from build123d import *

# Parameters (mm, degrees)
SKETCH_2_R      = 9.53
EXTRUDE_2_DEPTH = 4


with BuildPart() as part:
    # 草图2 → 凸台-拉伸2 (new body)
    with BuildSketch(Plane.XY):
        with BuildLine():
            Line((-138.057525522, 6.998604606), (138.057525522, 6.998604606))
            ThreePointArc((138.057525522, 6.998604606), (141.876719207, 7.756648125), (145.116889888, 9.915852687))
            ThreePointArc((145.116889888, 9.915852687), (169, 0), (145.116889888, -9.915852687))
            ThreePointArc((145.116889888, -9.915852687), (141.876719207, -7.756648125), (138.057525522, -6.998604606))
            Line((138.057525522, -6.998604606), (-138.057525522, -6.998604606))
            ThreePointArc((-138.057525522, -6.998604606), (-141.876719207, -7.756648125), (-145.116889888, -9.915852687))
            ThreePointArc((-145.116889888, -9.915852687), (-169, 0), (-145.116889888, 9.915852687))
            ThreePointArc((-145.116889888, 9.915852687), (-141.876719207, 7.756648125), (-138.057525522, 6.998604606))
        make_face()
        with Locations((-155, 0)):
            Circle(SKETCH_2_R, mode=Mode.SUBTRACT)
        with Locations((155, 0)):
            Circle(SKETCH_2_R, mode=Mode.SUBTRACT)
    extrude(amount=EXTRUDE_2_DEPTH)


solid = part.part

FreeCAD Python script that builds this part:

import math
import FreeCAD as App
import Part
import Sketcher
from FreeCAD import Vector

doc = App.newDocument("Part")
body = doc.addObject("PartDesign::Body", "Body")

# Sketch on XY plane
sketch1 = doc.addObject("Sketcher::SketchObject", "Sketch")
body.addObject(sketch1)
sketch1.AttachmentSupport = (doc.XY_Plane, [""])
sketch1.MapMode = "FlatFace"
sketch1.addGeometry([
    Part.LineSegment(Vector(138, 7, 0), Vector(-138, 7, 0)),  # 0
    Part.ArcOfCircle(Part.Circle(Vector(-138, 17, 0), Vector(0, 0, 1), 10), math.radians(-135), math.radians(-90)),  # 1
    Part.ArcOfCircle(Part.Circle(Vector(-155, 0, 0), Vector(0, 0, 1), 14), math.radians(45), math.radians(315)),  # 2
    Part.ArcOfCircle(Part.Circle(Vector(-138, -17, 0), Vector(0, 0, 1), 10), math.radians(90), math.radians(135)),  # 3
    Part.LineSegment(Vector(-138, -7, 0), Vector(138, -7, 0)),  # 4
    Part.ArcOfCircle(Part.Circle(Vector(138, -17, 0), Vector(0, 0, 1), 10), math.radians(45), math.radians(90)),  # 5
    Part.ArcOfCircle(Part.Circle(Vector(155, 0, 0), Vector(0, 0, 1), 14), math.radians(-135), math.radians(135)),  # 6
    Part.ArcOfCircle(Part.Circle(Vector(138, 17, 0), Vector(0, 0, 1), 10), math.radians(-90), math.radians(-45)),  # 7
    Part.Circle(Vector(155, 0, 0), Vector(0, 0, 1), 10),  # 8
    Part.Circle(Vector(-155, 0, 0), Vector(0, 0, 1), 10),  # 9
], False)
sketch1.addConstraint([
    Sketcher.Constraint("Tangent", 0, 2, 1, 2),
    Sketcher.Constraint("Tangent", 1, 1, 2, 1),
    Sketcher.Constraint("Tangent", 2, 2, 3, 2),
    Sketcher.Constraint("Tangent", 3, 1, 4, 1),
    Sketcher.Constraint("Tangent", 4, 2, 5, 2),
    Sketcher.Constraint("Tangent", 5, 1, 6, 1),
    Sketcher.Constraint("Tangent", 6, 2, 7, 2),
    Sketcher.Constraint("Tangent", 7, 1, 0, 1),
    Sketcher.Constraint("Horizontal", 0),
    Sketcher.Constraint("Horizontal", 4),
    Sketcher.Constraint("Coincident", 8, 3, 6, 3),
    Sketcher.Constraint("Coincident", 9, 3, 2, 3),
    Sketcher.Constraint("Equal", 1, 3),
    Sketcher.Constraint("Equal", 3, 5),
    Sketcher.Constraint("Equal", 2, 6),
    Sketcher.Constraint("Equal", 5, 7),
    Sketcher.Constraint("Equal", 8, 9),
    Sketcher.Constraint("Symmetric", 1, 3, 5, 3, -1, 1),
    Sketcher.Constraint("Symmetric", 2, 3, 6, 3, -2),
    Sketcher.Constraint("Radius", 1, 10.0),
    Sketcher.Constraint("Radius", 2, 14.0),
    Sketcher.Constraint("Diameter", 8, 19.06),
    Sketcher.Constraint("DistanceX", 2, 3, -1, 1, 155.0),
    Sketcher.Constraint("DistanceX", 0, 2, 0, 1, 276.115051),
])
pad1 = doc.addObject("PartDesign::Pad", "Pad")
body.addObject(pad1)
pad1.Profile = sketch1
pad1.Length = 4

doc.recompute()
